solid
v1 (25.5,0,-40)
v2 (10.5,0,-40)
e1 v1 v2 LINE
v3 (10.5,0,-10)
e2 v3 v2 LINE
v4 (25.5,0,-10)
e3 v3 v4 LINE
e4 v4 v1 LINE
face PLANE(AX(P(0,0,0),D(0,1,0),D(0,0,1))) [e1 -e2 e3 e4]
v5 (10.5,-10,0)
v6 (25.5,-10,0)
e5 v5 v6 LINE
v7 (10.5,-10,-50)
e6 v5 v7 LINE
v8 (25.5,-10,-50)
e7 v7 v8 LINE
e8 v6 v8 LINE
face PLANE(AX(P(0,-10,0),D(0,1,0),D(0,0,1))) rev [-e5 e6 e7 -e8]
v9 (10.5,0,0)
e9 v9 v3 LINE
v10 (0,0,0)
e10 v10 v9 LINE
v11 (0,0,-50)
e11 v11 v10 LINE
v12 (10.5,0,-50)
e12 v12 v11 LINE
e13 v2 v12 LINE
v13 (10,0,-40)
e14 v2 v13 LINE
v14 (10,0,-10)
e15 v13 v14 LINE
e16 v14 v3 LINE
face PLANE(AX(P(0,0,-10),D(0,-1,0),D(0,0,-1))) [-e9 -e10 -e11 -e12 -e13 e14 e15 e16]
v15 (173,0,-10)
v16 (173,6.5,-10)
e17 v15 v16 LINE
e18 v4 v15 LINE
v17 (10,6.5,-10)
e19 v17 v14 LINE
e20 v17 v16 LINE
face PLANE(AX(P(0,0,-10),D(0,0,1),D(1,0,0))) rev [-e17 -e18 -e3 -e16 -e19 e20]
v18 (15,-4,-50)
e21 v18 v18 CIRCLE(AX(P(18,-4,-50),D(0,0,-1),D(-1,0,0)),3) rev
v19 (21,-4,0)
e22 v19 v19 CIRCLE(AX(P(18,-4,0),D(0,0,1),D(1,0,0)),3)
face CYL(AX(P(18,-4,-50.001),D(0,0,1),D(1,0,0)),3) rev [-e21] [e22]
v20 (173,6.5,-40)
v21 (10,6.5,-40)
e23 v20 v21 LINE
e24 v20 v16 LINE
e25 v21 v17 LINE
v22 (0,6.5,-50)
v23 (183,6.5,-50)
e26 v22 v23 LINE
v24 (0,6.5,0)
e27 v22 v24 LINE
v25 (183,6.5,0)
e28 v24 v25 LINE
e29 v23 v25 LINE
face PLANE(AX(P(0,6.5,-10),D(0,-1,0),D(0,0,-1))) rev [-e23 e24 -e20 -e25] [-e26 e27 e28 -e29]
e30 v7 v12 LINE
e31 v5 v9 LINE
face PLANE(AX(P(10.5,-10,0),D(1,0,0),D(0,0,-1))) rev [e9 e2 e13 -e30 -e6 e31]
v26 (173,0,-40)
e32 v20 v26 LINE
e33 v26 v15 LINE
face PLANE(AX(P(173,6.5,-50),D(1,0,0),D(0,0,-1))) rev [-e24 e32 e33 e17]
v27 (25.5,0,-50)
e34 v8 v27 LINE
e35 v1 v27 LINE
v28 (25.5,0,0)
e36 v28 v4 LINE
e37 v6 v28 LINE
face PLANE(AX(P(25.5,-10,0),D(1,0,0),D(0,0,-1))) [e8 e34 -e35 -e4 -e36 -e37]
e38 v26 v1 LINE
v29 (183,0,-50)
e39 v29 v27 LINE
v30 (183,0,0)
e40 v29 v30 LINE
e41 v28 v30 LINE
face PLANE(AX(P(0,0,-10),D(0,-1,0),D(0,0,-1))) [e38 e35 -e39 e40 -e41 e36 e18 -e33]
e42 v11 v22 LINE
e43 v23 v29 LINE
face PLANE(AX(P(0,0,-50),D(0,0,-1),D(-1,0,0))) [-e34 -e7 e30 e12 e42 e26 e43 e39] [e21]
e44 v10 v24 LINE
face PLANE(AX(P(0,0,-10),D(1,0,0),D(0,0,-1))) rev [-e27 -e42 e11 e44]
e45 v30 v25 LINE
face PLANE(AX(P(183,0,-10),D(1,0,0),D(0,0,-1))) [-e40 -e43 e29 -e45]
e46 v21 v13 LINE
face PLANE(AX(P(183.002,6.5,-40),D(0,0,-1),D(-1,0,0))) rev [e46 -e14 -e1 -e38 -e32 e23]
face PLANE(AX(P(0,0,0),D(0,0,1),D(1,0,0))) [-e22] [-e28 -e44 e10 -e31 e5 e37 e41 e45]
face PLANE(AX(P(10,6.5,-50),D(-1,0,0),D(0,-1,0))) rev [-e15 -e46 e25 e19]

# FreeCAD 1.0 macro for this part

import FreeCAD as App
import Part
import Sketcher

doc = App.newDocument("Part")
body = doc.addObject("PartDesign::Body", "Body")

sketch1 = body.newObject("Sketcher::SketchObject", "Sketch")
sketch1.AttachmentSupport = (doc.getObject("XY_Plane"), [""])
sketch1.MapMode = "FlatFace"
sketch1.addGeometry([
    Part.LineSegment(App.Vector(0, 6.5, 0), App.Vector(0, 0, 0)),
    Part.LineSegment(App.Vector(0, 0, 0), App.Vector(183, 0, 0)),
    Part.LineSegment(App.Vector(183, 0, 0), App.Vector(183, 6.5, 0)),
    Part.LineSegment(App.Vector(183, 6.5, 0), App.Vector(0, 6.5, 0)),
], False)
sketch1.addConstraint([
    Sketcher.Constraint("Coincident", 0, 2, 1, 1),
    Sketcher.Constraint("Coincident", 1, 2, 2, 1),
    Sketcher.Constraint("Coincident", 2, 2, 3, 1),
    Sketcher.Constraint("Coincident", 3, 2, 0, 1),
    Sketcher.Constraint("Vertical", 0),
    Sketcher.Constraint("Horizontal", 1),
    Sketcher.Constraint("Vertical", 2),
    Sketcher.Constraint("Horizontal", 3),
    Sketcher.Constraint("Coincident", 0, 2, -1, 1),
    Sketcher.Constraint("DistanceX", 1, 1, 1, 2, 183.0),
    Sketcher.Constraint("DistanceY", 0, 2, 0, 1, 6.5),
])
pad1 = body.newObject("PartDesign::Pad", "Pad")
pad1.Profile = sketch1
pad1.Length = 10
pad1.Reversed = True

sketch2 = body.newObject("Sketcher::SketchObject", "Sketch001")
sketch2.AttachmentSupport = (doc.getObject("XY_Plane"), [""])
sketch2.MapMode = "FlatFace"
sketch2.AttachmentOffset = App.Placement(App.Vector(0, 0, -10), App.Rotation())
sketch2.addGeometry([
    Part.LineSegment(App.Vector(183, 6.5, 0), App.Vector(183, 0, 0)),
    Part.LineSegment(App.Vector(183, 0, 0), App.Vector(173, 0, 0)),
    Part.LineSegment(App.Vector(173, 0, 0), App.Vector(173, 6.5, 0)),
    Part.LineSegment(App.Vector(173, 6.5, 0), App.Vector(183, 6.5, 0)),
    Part.LineSegment(App.Vector(10, 6.5, 0), App.Vector(10, 0, 0)),
    Part.LineSegment(App.Vector(10, 0, 0), App.Vector(0, 0, 0)),
    Part.LineSegment(App.Vector(0, 0, 0), App.Vector(0, 6.5, 0)),
    Part.LineSegment(App.Vector(0, 6.5, 0), App.Vector(10, 6.5, 0)),
], False)
sketch2.addConstraint([
    Sketcher.Constraint("Coincident", 0, 2, 1, 1),
    Sketcher.Constraint("Coincident", 1, 2, 2, 1),
    Sketcher.Constraint("Coincident", 2, 2, 3, 1),
    Sketcher.Constraint("Coincident", 3, 2, 0, 1),
    Sketcher.Constraint("Coincident", 4, 2, 5, 1),
    Sketcher.Constraint("Coincident", 5, 2, 6, 1),
    Sketcher.Constraint("Coincident", 6, 2, 7, 1),
    Sketcher.Constraint("Coincident", 7, 2, 4, 1),
    Sketcher.Constraint("Vertical", 0),
    Sketcher.Constraint("Horizontal", 1),
    Sketcher.Constraint("Vertical", 2),
    Sketcher.Constraint("Horizontal", 3),
    Sketcher.Constraint("Vertical", 4),
    Sketcher.Constraint("Horizontal", 5),
    Sketcher.Constraint("Vertical", 6),
    Sketcher.Constraint("Horizontal", 7),
    Sketcher.Constraint("Coincident", 5, 2, -1, 1),
    Sketcher.Constraint("PointOnObject", 0, 2, -1),
    Sketcher.Constraint("Horizontal", 3, 2, 6, 2),
    Sketcher.Constraint("Equal", 3, 5),
    Sketcher.Constraint("DistanceX", 1, 2, 1, 1, 10.0),
    Sketcher.Constraint("DistanceY", 0, 2, 0, 1, 6.5),
    Sketcher.Constraint("DistanceX", -1, 1, 0, 2, 183.0),
])
pad2 = body.newObject("PartDesign::Pad", "Pad001")
pad2.Profile = sketch2
pad2.Length = 40
pad2.Reversed = True

sketch3 = body.newObject("Sketcher::SketchObject", "Sketch002")
sketch3.AttachmentSupport = (doc.getObject("YZ_Plane"), [""])
sketch3.MapMode = "FlatFace"
sketch3.AttachmentOffset = App.Placement(App.Vector(0, 0, 10), App.Rotation())
sketch3.addGeometry([
    Part.LineSegment(App.Vector(6.5, -40, 0), App.Vector(0, -40, 0)),
    Part.LineSegment(App.Vector(0, -40, 0), App.Vector(0, -50, 0)),
    Part.LineSegment(App.Vector(0, -50, 0), App.Vector(6.5, -50, 0)),
    Part.LineSegment(App.Vector(6.5, -50, 0), App.Vector(6.5, -40, 0)),
], False)
sketch3.addConstraint([
    Sketcher.Constraint("Coincident", 0, 2, 1, 1),
    Sketcher.Constraint("Coincident", 1, 2, 2, 1),
    Sketcher.Constraint("Coincident", 2, 2, 3, 1),
    Sketcher.Constraint("Coincident", 3, 2, 0, 1),
    Sketcher.Constraint("Horizontal", 0),
    Sketcher.Constraint("Vertical", 1),
    Sketcher.Constraint("Horizontal", 2),
    Sketcher.Constraint("Vertical", 3),
    Sketcher.Constraint("PointOnObject", 0, 2, -2),
    Sketcher.Constraint("DistanceY", 1, 2, 1, 1, 10.0),
    Sketcher.Constraint("DistanceX", 0, 2, 0, 1, 6.5),
    Sketcher.Constraint("DistanceY", 0, 2, -1, 1, 40.0),
])
pad3 = body.newObject("PartDesign::Pad", "Pad002")
pad3.Profile = sketch3
pad3.Type = "UpToFirst"

sketch4 = body.newObject("Sketcher::SketchObject", "Sketch003")
sketch4.AttachmentSupport = (doc.getObject("XZ_Plane"), [""])
sketch4.MapMode = "FlatFace"
sketch4.addGeometry([
    Part.LineSegment(App.Vector(10.5, 0, 0), App.Vector(10.5, -50, 0)),
    Part.LineSegment(App.Vector(10.5, -50, 0), App.Vector(25.5, -50, 0)),
    Part.LineSegment(App.Vector(25.5, -50, 0), App.Vector(25.5, 0, 0)),
    Part.LineSegment(App.Vector(25.5, 0, 0), App.Vector(10.5, 0, 0)),
], False)
sketch4.addConstraint([
    Sketcher.Constraint("Coincident", 0, 2, 1, 1),
    Sketcher.Constraint("Coincident", 1, 2, 2, 1),
    Sketcher.Constraint("Coincident", 2, 2, 3, 1),
    Sketcher.Constraint("Coincident", 3, 2, 0, 1),
    Sketcher.Constraint("Vertical", 0),
    Sketcher.Constraint("Horizontal", 1),
    Sketcher.Constraint("Vertical", 2),
    Sketcher.Constraint("Horizontal", 3),
    Sketcher.Constraint("PointOnObject", 2, 2, -1),
    Sketcher.Constraint("DistanceX", 1, 1, 1, 2, 15.0),
    Sketcher.Constraint("DistanceY", 0, 2, 0, 1, 50.0),
    Sketcher.Constraint("DistanceX", -1, 1, 0, 2, 10.5),
])
pad4 = body.newObject("PartDesign::Pad", "Pad003")
pad4.Profile = sketch4
pad4.Length = 10

sketch5 = body.newObject("Sketcher::SketchObject", "Sketch004")
sketch5.AttachmentSupport = (doc.getObject("XY_Plane"), [""])
sketch5.MapMode = "FlatFace"
sketch5.addGeometry(Part.Circle(App.Vector(18, -4, 0), App.Vector(0, 0, 1), 3), False)
sketch5.addConstraint([
    Sketcher.Constraint("Diameter", 0, 6.0),
    Sketcher.Constraint("DistanceX", -1, 1, 0, 3, 18.0),
    Sketcher.Constraint("DistanceY", 0, 3, -1, 1, 4.0),
])
pocket1 = body.newObject("PartDesign::Pocket", "Pocket")
pocket1.Profile = sketch5
pocket1.Type = "UpToFirst"

doc.recompute()
